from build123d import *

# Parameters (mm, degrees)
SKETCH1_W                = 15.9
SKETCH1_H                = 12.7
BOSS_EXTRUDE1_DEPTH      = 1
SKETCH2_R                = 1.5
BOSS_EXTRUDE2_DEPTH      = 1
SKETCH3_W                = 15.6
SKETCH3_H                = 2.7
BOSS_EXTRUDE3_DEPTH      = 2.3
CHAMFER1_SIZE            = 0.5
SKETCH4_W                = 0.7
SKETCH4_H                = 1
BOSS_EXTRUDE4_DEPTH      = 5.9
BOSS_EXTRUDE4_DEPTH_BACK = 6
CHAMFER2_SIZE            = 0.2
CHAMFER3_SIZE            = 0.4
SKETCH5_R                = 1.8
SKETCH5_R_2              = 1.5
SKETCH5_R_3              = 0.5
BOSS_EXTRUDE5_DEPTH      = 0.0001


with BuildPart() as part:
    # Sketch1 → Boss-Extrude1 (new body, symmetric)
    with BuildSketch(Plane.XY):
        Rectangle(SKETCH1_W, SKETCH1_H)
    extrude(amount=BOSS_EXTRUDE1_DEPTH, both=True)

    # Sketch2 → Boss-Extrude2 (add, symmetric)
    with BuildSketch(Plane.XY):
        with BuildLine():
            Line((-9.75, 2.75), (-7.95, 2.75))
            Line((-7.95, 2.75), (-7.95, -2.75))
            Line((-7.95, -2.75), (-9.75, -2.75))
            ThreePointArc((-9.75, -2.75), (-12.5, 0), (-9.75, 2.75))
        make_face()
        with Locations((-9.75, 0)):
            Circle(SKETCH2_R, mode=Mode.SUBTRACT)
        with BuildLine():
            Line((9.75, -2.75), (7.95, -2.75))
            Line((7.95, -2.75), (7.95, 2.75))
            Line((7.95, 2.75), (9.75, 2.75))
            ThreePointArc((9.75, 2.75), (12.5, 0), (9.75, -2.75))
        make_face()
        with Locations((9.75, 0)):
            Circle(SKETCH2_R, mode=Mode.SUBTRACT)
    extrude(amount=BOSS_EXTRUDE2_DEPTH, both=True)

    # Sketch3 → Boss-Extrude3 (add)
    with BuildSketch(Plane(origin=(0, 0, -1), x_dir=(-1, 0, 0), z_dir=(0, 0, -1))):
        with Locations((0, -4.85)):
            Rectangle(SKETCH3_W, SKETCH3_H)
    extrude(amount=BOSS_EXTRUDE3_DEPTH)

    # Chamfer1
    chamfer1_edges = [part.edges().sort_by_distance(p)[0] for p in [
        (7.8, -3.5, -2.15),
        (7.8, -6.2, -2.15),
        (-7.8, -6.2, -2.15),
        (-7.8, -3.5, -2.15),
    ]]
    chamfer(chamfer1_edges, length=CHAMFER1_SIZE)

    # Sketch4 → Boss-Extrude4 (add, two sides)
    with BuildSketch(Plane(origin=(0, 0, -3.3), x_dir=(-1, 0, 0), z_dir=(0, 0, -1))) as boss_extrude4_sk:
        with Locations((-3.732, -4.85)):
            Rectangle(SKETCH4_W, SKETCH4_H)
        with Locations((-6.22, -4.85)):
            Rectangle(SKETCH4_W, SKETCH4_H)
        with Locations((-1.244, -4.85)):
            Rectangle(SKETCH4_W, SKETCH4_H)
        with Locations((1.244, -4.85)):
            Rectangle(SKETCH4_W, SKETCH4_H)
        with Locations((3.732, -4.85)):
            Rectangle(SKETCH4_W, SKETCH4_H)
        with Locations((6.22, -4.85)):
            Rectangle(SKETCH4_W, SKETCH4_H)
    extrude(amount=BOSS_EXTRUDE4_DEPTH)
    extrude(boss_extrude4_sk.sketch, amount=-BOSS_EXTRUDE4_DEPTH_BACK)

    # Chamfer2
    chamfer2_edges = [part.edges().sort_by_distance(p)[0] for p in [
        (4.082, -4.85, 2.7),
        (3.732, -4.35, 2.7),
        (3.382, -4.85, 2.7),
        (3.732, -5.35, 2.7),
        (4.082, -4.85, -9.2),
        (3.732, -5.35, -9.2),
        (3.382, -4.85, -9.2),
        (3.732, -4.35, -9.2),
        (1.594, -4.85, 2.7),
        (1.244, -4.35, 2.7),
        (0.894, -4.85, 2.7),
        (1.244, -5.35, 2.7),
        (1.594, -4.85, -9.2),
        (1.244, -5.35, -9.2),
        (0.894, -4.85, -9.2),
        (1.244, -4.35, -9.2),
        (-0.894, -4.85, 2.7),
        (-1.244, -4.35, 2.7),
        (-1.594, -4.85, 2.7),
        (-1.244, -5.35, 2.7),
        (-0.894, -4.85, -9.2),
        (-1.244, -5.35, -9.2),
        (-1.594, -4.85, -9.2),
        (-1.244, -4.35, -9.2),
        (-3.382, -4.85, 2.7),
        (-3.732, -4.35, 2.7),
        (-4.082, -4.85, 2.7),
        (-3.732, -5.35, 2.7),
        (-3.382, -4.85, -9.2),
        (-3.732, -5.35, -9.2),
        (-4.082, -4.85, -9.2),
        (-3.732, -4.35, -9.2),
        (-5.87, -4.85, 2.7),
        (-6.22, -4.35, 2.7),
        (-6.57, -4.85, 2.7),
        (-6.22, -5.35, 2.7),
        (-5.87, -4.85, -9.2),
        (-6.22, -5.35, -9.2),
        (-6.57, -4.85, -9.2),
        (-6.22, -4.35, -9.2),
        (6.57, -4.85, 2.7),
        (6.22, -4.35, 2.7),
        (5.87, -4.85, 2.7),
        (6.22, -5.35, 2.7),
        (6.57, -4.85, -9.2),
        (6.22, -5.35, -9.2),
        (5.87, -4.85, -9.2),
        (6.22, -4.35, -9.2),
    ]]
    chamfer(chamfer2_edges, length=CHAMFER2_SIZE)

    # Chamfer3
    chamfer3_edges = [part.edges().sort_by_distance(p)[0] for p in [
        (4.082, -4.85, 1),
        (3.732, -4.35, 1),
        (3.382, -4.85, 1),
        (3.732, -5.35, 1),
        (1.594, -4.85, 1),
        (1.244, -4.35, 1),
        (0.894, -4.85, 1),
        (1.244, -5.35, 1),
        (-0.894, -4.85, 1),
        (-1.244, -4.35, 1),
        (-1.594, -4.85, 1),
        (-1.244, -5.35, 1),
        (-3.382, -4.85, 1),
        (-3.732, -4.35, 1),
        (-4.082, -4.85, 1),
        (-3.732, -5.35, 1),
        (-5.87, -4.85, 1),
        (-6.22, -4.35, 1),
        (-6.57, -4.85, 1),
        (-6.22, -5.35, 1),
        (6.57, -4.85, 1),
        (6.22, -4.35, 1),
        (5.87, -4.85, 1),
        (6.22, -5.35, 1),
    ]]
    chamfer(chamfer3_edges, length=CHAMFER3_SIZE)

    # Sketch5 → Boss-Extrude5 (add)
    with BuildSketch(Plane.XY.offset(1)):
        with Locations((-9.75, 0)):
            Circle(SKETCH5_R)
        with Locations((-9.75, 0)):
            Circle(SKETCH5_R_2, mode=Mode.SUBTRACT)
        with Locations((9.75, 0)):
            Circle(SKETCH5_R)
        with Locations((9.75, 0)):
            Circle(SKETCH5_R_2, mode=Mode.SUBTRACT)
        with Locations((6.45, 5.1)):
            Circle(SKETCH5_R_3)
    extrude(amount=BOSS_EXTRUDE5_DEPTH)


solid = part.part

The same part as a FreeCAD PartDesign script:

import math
import FreeCAD as App
import Part
import Sketcher


def edges_at(feature, points):
    """Names of the edges that pass closest to the given points."""
    edges = feature.Shape.Edges
    near = lambda p: min(range(len(edges)), key=lambda i: edges[i].distToShape(Part.Vertex(*p))[0])
    return sorted({f"Edge{near(p) + 1}" for p in points})


def add_polygon(sketch, points):
    """Adds a closed chain of lines whose ends are joined by coincident constraints."""
    first, n = sketch.GeometryCount, len(points)
    for a, b in zip(points, points[1:] + points[:1]):
        sketch.addGeometry(Part.LineSegment(App.Vector(*a, 0), App.Vector(*b, 0)), False)
    for i in range(n):
        sketch.addConstraint(Sketcher.Constraint("Coincident", first + i, 2, first + (i + 1) % n, 1))

doc = App.newDocument("Part")
body = doc.addObject("PartDesign::Body", "Body")

# Sketch on XY plane
sketch1 = body.newObject("Sketcher::SketchObject", "Sketch")
sketch1.AttachmentSupport = (doc.getObject("XY_Plane"), [""])
sketch1.MapMode = "FlatFace"
add_polygon(sketch1, [(-8, 6), (-8, -6), (8, -6), (8, 6)])  # lines 0-3
sketch1.addConstraint(Sketcher.Constraint("Vertical", 0))
sketch1.addConstraint(Sketcher.Constraint("Horizontal", 1))
sketch1.addConstraint(Sketcher.Constraint("Vertical", 2))
sketch1.addConstraint(Sketcher.Constraint("Horizontal", 3))
sketch1.addConstraint(Sketcher.Constraint("Symmetric", 0, 2, 2, 2, -1, 1))
sketch1.addConstraint(Sketcher.Constraint("DistanceX", 1, 1, 1, 2, 15.9))
sketch1.addConstraint(Sketcher.Constraint("DistanceY", 0, 2, 0, 1, 12.7))
pad1 = body.newObject("PartDesign::Pad", "Pad")
pad1.Profile = sketch1
pad1.Length = 2
pad1.Midplane = True

# Sketch on XY plane
sketch2 = body.newObject("Sketcher::SketchObject", "Sketch001")
sketch2.AttachmentSupport = (doc.getObject("XY_Plane"), [""])
sketch2.MapMode = "FlatFace"
sketch2.addGeometry(Part.LineSegment(App.Vector(-8, 2.8, 0), App.Vector(-9.8, 2.8, 0)), False)
sketch2.addGeometry(Part.ArcOfCircle(Part.Circle(App.Vector(-9.8, 0, 0), App.Vector(0, 0, 1), 2.8), math.radians(90), math.radians(270)), False)
sketch2.addGeometry(Part.LineSegment(App.Vector(-9.8, -2.8, 0), App.Vector(-8, -2.8, 0)), False)
sketch2.addGeometry(Part.LineSegment(App.Vector(-8, -2.8, 0), App.Vector(-8, 2.8, 0)), False)
sketch2.addGeometry(Part.Circle(App.Vector(-9.8, 0, 0), App.Vector(0, 0, 1), 1.5), False)
sketch2.addGeometry(Part.LineSegment(App.Vector(8, -2.8, 0), App.Vector(9.8, -2.8, 0)), False)
sketch2.addGeometry(Part.ArcOfCircle(Part.Circle(App.Vector(9.8, 0, 0), App.Vector(0, 0, 1), 2.8), math.radians(-90), math.radians(90)), False)
sketch2.addGeometry(Part.LineSegment(App.Vector(9.8, 2.8, 0), App.Vector(8, 2.8, 0)), False)
sketch2.addGeometry(Part.LineSegment(App.Vector(8, 2.8, 0), App.Vector(8, -2.8, 0)), False)
sketch2.addGeometry(Part.Circle(App.Vector(9.8, 0, 0), App.Vector(0, 0, 1), 1.5), False)
sketch2.addConstraint(Sketcher.Constraint("Tangent", 0, 2, 1, 1))
sketch2.addConstraint(Sketcher.Constraint("Tangent", 1, 2, 2, 1))
sketch2.addConstraint(Sketcher.Constraint("Coincident", 2, 2, 3, 1))
sketch2.addConstraint(Sketcher.Constraint("Coincident", 3, 2, 0, 1))
sketch2.addConstraint(Sketcher.Constraint("Tangent", 5, 2, 6, 1))
sketch2.addConstraint(Sketcher.Constraint("Tangent", 6, 2, 7, 1))
sketch2.addConstraint(Sketcher.Constraint("Coincident", 7, 2, 8, 1))
sketch2.addConstraint(Sketcher.Constraint("Coincident", 8, 2, 5, 1))
sketch2.addConstraint(Sketcher.Constraint("Horizontal", 0))
sketch2.addConstraint(Sketcher.Constraint("Horizontal", 2))
sketch2.addConstraint(Sketcher.Constraint("Vertical", 3))
sketch2.addConstraint(Sketcher.Constraint("Horizontal", 5))
sketch2.addConstraint(Sketcher.Constraint("Horizontal", 7))
sketch2.addConstraint(Sketcher.Constraint("Vertical", 8))
sketch2.addConstraint(Sketcher.Constraint("Coincident", 4, 3, 1, 3))
sketch2.addConstraint(Sketcher.Constraint("Coincident", 9, 3, 6, 3))
sketch2.addConstraint(Sketcher.Constraint("Equal", 1, 6))
sketch2.addConstraint(Sketcher.Constraint("Equal", 4, 9))
sketch2.addConstraint(Sketcher.Constraint("Symmetric", 1, 3, 6, 3, -1, 1))
sketch2.addConstraint(Sketcher.Constraint("Symmetric", 3, 2, 7, 2, -2))
sketch2.addConstraint(Sketcher.Constraint("Diameter", 4, 3.0))
sketch2.addConstraint(Sketcher.Constraint("Radius", 1, 2.75))
sketch2.addConstraint(Sketcher.Constraint("DistanceX", 0, 2, 0, 1, 1.8))
sketch2.addConstraint(Sketcher.Constraint("DistanceX", 1, 3, 6, 3, 19.5))
pad2 = body.newObject("PartDesign::Pad", "Pad001")
pad2.Profile = sketch2
pad2.Length = 2
pad2.Midplane = True

# Sketch on XY plane
sketch3 = body.newObject("Sketcher::SketchObject", "Sketch002")
sketch3.AttachmentSupport = (doc.getObject("XY_Plane"), [""])
sketch3.MapMode = "FlatFace"
sketch3.AttachmentOffset = App.Placement(App.Vector(0, 0, -1), App.Rotation())
add_polygon(sketch3, [(7.8, -3.5), (7.8, -6.2), (-7.8, -6.2), (-7.8, -3.5)])  # lines 0-3
sketch3.addConstraint(Sketcher.Constraint("Vertical", 0))
sketch3.addConstraint(Sketcher.Constraint("Horizontal", 1))
sketch3.addConstraint(Sketcher.Constraint("Vertical", 2))
sketch3.addConstraint(Sketcher.Constraint("Horizontal", 3))
sketch3.addConstraint(Sketcher.Constraint("DistanceX", 1, 2, 1, 1, 15.6))
sketch3.addConstraint(Sketcher.Constraint("DistanceY", 0, 2, 0, 1, 2.7))
sketch3.addConstraint(Sketcher.Constraint("DistanceX", -1, 1, 0, 2, 7.8))
sketch3.addConstraint(Sketcher.Constraint("DistanceY", 0, 2, -1, 1, 6.2))
pad3 = body.newObject("PartDesign::Pad", "Pad002")
pad3.Profile = sketch3
pad3.Length = 2.3
pad3.Reversed = True
doc.recompute()

chamfer = body.newObject("PartDesign::Chamfer", "Chamfer")
chamfer.Base = (pad3, edges_at(pad3, [
    (7.8, -3.5, -2.15),
    (7.8, -6.2, -2.15),
    (-7.8, -6.2, -2.15),
    (-7.8, -3.5, -2.15),
]))
chamfer.Size = 0.5

# Sketch on XY plane
sketch4 = body.newObject("Sketcher::SketchObject", "Sketch003")
sketch4.AttachmentSupport = (doc.getObject("XY_Plane"), [""])
sketch4.MapMode = "FlatFace"
sketch4.AttachmentOffset = App.Placement(App.Vector(0, 0, -3.3), App.Rotation())
add_polygon(sketch4, [(4.1, -4.3), (4.1, -5.3), (3.4, -5.3), (3.4, -4.3)])  # lines 0-3
add_polygon(sketch4, [(6.6, -4.3), (6.6, -5.3), (5.9, -5.3), (5.9, -4.3)])  # lines 4-7
add_polygon(sketch4, [(1.6, -4.3), (1.6, -5.3), (0.9, -5.3), (0.9, -4.3)])  # lines 8-11
add_polygon(sketch4, [(-0.9, -4.3), (-0.9, -5.3), (-1.6, -5.3), (-1.6, -4.3)])  # lines 12-15
add_polygon(sketch4, [(-3.4, -4.3), (-3.4, -5.3), (-4.1, -5.3), (-4.1, -4.3)])  # lines 16-19
add_polygon(sketch4, [(-5.9, -4.3), (-5.9, -5.3), (-6.6, -5.3), (-6.6, -4.3)])  # lines 20-23
sketch4.addConstraint(Sketcher.Constraint("Vertical", 0))
sketch4.addConstraint(Sketcher.Constraint("Horizontal", 1))
sketch4.addConstraint(Sketcher.Constraint("Vertical", 2))
sketch4.addConstraint(Sketcher.Constraint("Horizontal", 3))
sketch4.addConstraint(Sketcher.Constraint("Vertical", 4))
sketch4.addConstraint(Sketcher.Constraint("Horizontal", 5))
sketch4.addConstraint(Sketcher.Constraint("Vertical", 6))
sketch4.addConstraint(Sketcher.Constraint("Horizontal", 7))
sketch4.addConstraint(Sketcher.Constraint("Vertical", 8))
sketch4.addConstraint(Sketcher.Constraint("Horizontal", 9))
sketch4.addConstraint(Sketcher.Constraint("Vertical", 10))
sketch4.addConstraint(Sketcher.Constraint("Horizontal", 11))
sketch4.addConstraint(Sketcher.Constraint("Vertical", 12))
sketch4.addConstraint(Sketcher.Constraint("Horizontal", 13))
sketch4.addConstraint(Sketcher.Constraint("Vertical", 14))
sketch4.addConstraint(Sketcher.Constraint("Horizontal", 15))
sketch4.addConstraint(Sketcher.Constraint("Vertical", 16))
sketch4.addConstraint(Sketcher.Constraint("Horizontal", 17))
sketch4.addConstraint(Sketcher.Constraint("Vertical", 18))
sketch4.addConstraint(Sketcher.Constraint("Horizontal", 19))
sketch4.addConstraint(Sketcher.Constraint("Vertical", 20))
sketch4.addConstraint(Sketcher.Constraint("Horizontal", 21))
sketch4.addConstraint(Sketcher.Constraint("Vertical", 22))
sketch4.addConstraint(Sketcher.Constraint("Horizontal", 23))
sketch4.addConstraint(Sketcher.Constraint("Symmetric", 9, 2, 12, 2, -2))
sketch4.addConstraint(Sketcher.Constraint("Symmetric", 11, 2, 14, 2, -2))
sketch4.addConstraint(Sketcher.Constraint("Symmetric", 1, 2, 16, 2, -2))
sketch4.addConstraint(Sketcher.Constraint("Symmetric", 3, 2, 18, 2, -2))
sketch4.addConstraint(Sketcher.Constraint("Symmetric", 5, 2, 20, 2, -2))
sketch4.addConstraint(Sketcher.Constraint("Symmetric", 7, 2, 22, 2, -2))
sketch4.addConstraint(Sketcher.Constraint("Horizontal", 1, 2, 4, 2))
sketch4.addConstraint(Sketcher.Constraint("Horizontal", 3, 2, 6, 2))
sketch4.addConstraint(Sketcher.Constraint("Horizontal", 5, 2, 8, 2))
sketch4.addConstraint(Sketcher.Constraint("Horizontal", 7, 2, 10, 2))
sketch4.addConstraint(Sketcher.Constraint("Equal", 3, 5))
sketch4.addConstraint(Sketcher.Constraint("Equal", 7, 9))
sketch4.addConstraint(Sketcher.Constraint("DistanceY", 0, 2, 0, 1, 1.0))
sketch4.addConstraint(Sketcher.Constraint("DistanceX", 1, 2, 1, 1, 0.7))
sketch4.addConstraint(Sketcher.Constraint("DistanceY", 0, 2, -1, 1, 5.35))
sketch4.addConstraint(Sketcher.Constraint("DistanceX", -1, 1, 4, 2, 6.57))
sketch4.addConstraint(Sketcher.Constraint("DistanceX", -1, 1, 0, 2, 4.082))
sketch4.addConstraint(Sketcher.Constraint("DistanceX", -1, 1, 8, 2, 1.594))
pad4 = body.newObject("PartDesign::Pad", "Pad003")
pad4.Profile = sketch4
pad4.Type = "TwoLengths"
pad4.Length = 5.9
pad4.Length2 = 6
pad4.Reversed = True
doc.recompute()

chamfer2 = body.newObject("PartDesign::Chamfer", "Chamfer001")
chamfer2.Base = (pad4, edges_at(pad4, [
    (4.082, -4.85, 2.7),
    (3.732, -4.35, 2.7),
    (3.382, -4.85, 2.7),
    (3.732, -5.35, 2.7),
    (4.082, -4.85, -9.2),
    (3.732, -5.35, -9.2),
    (3.382, -4.85, -9.2),
    (3.732, -4.35, -9.2),
    (1.594, -4.85, 2.7),
    (1.244, -4.35, 2.7),
    (0.894, -4.85, 2.7),
    (1.244, -5.35, 2.7),
    (1.594, -4.85, -9.2),
    (1.244, -5.35, -9.2),
    (0.894, -4.85, -9.2),
    (1.244, -4.35, -9.2),
    (-0.894, -4.85, 2.7),
    (-1.244, -4.35, 2.7),
    (-1.594, -4.85, 2.7),
    (-1.244, -5.35, 2.7),
    (-0.894, -4.85, -9.2),
    (-1.244, -5.35, -9.2),
    (-1.594, -4.85, -9.2),
    (-1.244, -4.35, -9.2),
    (-3.382, -4.85, 2.7),
    (-3.732, -4.35, 2.7),
    (-4.082, -4.85, 2.7),
    (-3.732, -5.35, 2.7),
    (-3.382, -4.85, -9.2),
    (-3.732, -5.35, -9.2),
    (-4.082, -4.85, -9.2),
    (-3.732, -4.35, -9.2),
    (-5.87, -4.85, 2.7),
    (-6.22, -4.35, 2.7),
    (-6.57, -4.85, 2.7),
    (-6.22, -5.35, 2.7),
    (-5.87, -4.85, -9.2),
    (-6.22, -5.35, -9.2),
    (-6.57, -4.85, -9.2),
    (-6.22, -4.35, -9.2),
    (6.57, -4.85, 2.7),
    (6.22, -4.35, 2.7),
    (5.87, -4.85, 2.7),
    (6.22, -5.35, 2.7),
    (6.57, -4.85, -9.2),
    (6.22, -5.35, -9.2),
    (5.87, -4.85, -9.2),
    (6.22, -4.35, -9.2),
]))
chamfer2.Size = 0.2
doc.recompute()

chamfer3 = body.newObject("PartDesign::Chamfer", "Chamfer002")
chamfer3.Base = (chamfer2, edges_at(chamfer2, [
    (4.082, -4.85, 1),
    (3.732, -4.35, 1),
    (3.382, -4.85, 1),
    (3.732, -5.35, 1),
    (1.594, -4.85, 1),
    (1.244, -4.35, 1),
    (0.894, -4.85, 1),
    (1.244, -5.35, 1),
    (-0.894, -4.85, 1),
    (-1.244, -4.35, 1),
    (-1.594, -4.85, 1),
    (-1.244, -5.35, 1),
    (-3.382, -4.85, 1),
    (-3.732, -4.35, 1),
    (-4.082, -4.85, 1),
    (-3.732, -5.35, 1),
    (-5.87, -4.85, 1),
    (-6.22, -4.35, 1),
    (-6.57, -4.85, 1),
    (-6.22, -5.35, 1),
    (6.57, -4.85, 1),
    (6.22, -4.35, 1),
    (5.87, -4.85, 1),
    (6.22, -5.35, 1),
]))
chamfer3.Size = 0.4

# Sketch on XY plane
sketch5 = body.newObject("Sketcher::SketchObject", "Sketch004")
sketch5.AttachmentSupport = (doc.getObject("XY_Plane"), [""])
sketch5.MapMode = "FlatFace"
sketch5.AttachmentOffset = App.Placement(App.Vector(0, 0, 1), App.Rotation())
sketch5.addGeometry(Part.Circle(App.Vector(-9.8, 0, 0), App.Vector(0, 0, 1), 1.8), False)
sketch5.addGeometry(Part.Circle(App.Vector(-9.8, 0, 0), App.Vector(0, 0, 1), 1.5), False)
sketch5.addGeometry(Part.Circle(App.Vector(9.8, 0, 0), App.Vector(0, 0, 1), 1.8), False)
sketch5.addGeometry(Part.Circle(App.Vector(9.8, 0, 0), App.Vector(0, 0, 1), 1.5), False)
sketch5.addGeometry(Part.Circle(App.Vector(6.5, 5.1, 0), App.Vector(0, 0, 1), 0.5), False)
sketch5.addConstraint(Sketcher.Constraint("Coincident", 1, 3, 0, 3))
sketch5.addConstraint(Sketcher.Constraint("Coincident", 3, 3, 2, 3))
sketch5.addConstraint(Sketcher.Constraint("Equal", 0, 2))
sketch5.addConstraint(Sketcher.Constraint("Equal", 1, 3))
sketch5.addConstraint(Sketcher.Constraint("Symmetric", 0, 3, 2, 3, -1, 1))
sketch5.addConstraint(Sketcher.Constraint("PointOnObject", 0, 3, -1))
sketch5.addConstraint(Sketcher.Constraint("Diameter", 1, 3.0))
sketch5.addConstraint(Sketcher.Constraint("Diameter", 4, 1.0))
sketch5.addConstraint(Sketcher.Constraint("Diameter", 0, 3.6))
sketch5.addConstraint(Sketcher.Constraint("DistanceY", -1, 1, 4, 3, 5.1))
sketch5.addConstraint(Sketcher.Constraint("DistanceX", 0, 3, 2, 3, 19.5))
sketch5.addConstraint(Sketcher.Constraint("DistanceX", 4, 3, 2, 3, 3.3))
pad5 = body.newObject("PartDesign::Pad", "Pad004")
pad5.Profile = sketch5
pad5.Length = 0.0001

doc.recompute()
